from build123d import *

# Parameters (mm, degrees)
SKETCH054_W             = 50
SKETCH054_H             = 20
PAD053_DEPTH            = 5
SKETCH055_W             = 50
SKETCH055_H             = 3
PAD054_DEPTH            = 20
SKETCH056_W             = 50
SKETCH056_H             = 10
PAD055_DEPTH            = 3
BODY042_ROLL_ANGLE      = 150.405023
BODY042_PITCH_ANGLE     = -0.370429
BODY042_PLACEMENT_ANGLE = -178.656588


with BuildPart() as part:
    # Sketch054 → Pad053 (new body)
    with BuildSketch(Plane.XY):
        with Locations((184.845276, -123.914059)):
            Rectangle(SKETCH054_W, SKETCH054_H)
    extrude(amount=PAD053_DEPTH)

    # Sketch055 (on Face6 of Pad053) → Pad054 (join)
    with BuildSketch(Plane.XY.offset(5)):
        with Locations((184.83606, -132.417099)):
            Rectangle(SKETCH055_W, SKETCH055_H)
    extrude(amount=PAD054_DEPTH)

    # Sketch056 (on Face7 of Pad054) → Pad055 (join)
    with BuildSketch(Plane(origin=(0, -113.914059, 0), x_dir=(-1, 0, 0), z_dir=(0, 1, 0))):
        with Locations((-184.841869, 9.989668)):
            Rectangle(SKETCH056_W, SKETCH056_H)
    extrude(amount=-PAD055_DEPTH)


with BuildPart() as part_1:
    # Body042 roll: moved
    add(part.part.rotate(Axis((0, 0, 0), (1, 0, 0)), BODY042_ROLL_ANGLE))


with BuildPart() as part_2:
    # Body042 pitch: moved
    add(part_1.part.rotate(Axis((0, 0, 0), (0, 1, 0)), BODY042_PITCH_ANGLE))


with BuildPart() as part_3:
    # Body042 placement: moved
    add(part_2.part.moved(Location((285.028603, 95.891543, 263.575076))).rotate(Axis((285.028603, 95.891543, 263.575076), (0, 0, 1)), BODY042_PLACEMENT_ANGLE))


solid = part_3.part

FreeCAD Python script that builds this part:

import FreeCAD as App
import Part
import Sketcher
from FreeCAD import Vector
Q = App.Units.Quantity


def add_polygon(sketch, points):
    """Adds a closed chain of lines whose ends are joined by coincident constraints."""
    first, n = sketch.GeometryCount, len(points)
    for a, b in zip(points, points[1:] + points[:1]):
        sketch.addGeometry(Part.LineSegment(App.Vector(*a, 0), App.Vector(*b, 0)), False)
    for i in range(n):
        sketch.addConstraint(Sketcher.Constraint("Coincident", first + i, 2, first + (i + 1) % n, 1))

doc = App.newDocument("Part")
params = doc.addObject("Spreadsheet::Sheet", "Params")
for row, (alias, value) in enumerate([
    ("sketch1_width", "50 mm"),
    ("sketch1_height", "20 mm"),
    ("pad1_length", "5 mm"),
    ("sketch2_width", "50 mm"),
    ("sketch2_height", "3 mm"),
    ("pad2_length", "20 mm"),
    ("sketch3_width", "50 mm"),
    ("sketch3_height", "10 mm"),
    ("pad3_length", "3 mm"),
], start=1):
    params.set(f"A{row}", alias)
    params.set(f"B{row}", "=" + value)
    params.setAlias(f"B{row}", alias)

body = doc.addObject("PartDesign::Body", "Body")

sketch1 = body.newObject("Sketcher::SketchObject", "Sketch")
sketch1.AttachmentSupport = (doc.getObject("XY_Plane"), [""])
sketch1.MapMode = "FlatFace"
add_polygon(sketch1, [(160, -114), (160, -134), (210, -134), (210, -114)])
sketch1.addConstraint([
    Sketcher.Constraint("Vertical", 0),
    Sketcher.Constraint("Horizontal", 1),
    Sketcher.Constraint("Vertical", 2),
    Sketcher.Constraint("Horizontal", 3),
    Sketcher.Constraint("DistanceX", 1, 1, 1, 2, Q("50 mm")),
    Sketcher.Constraint("DistanceY", 0, 2, 0, 1, Q("20 mm")),
    Sketcher.Constraint("DistanceY", 0, 2, -1, 1, Q("133.914059 mm")),
    Sketcher.Constraint("DistanceX", -1, 1, 0, 2, Q("159.845276 mm")),
])
sketch1.setExpression("Constraints[8]", "Params.sketch1_width")
sketch1.setExpression("Constraints[9]", "Params.sketch1_height")
pad1 = body.newObject("PartDesign::Pad", "Pad")
pad1.Profile = sketch1
pad1.setExpression("Length", "Params.pad1_length")

sketch2 = body.newObject("Sketcher::SketchObject", "Sketch001")
sketch2.AttachmentSupport = (doc.getObject("XY_Plane"), [""])
sketch2.MapMode = "FlatFace"
sketch2.AttachmentOffset = App.Placement(Vector(0, 0, 5), App.Rotation())
add_polygon(sketch2, [(159.8, -130.9), (159.8, -133.9), (209.8, -133.9), (209.8, -130.9)])
sketch2.addConstraint([
    Sketcher.Constraint("Vertical", 0),
    Sketcher.Constraint("Horizontal", 1),
    Sketcher.Constraint("Vertical", 2),
    Sketcher.Constraint("Horizontal", 3),
    Sketcher.Constraint("DistanceX", 1, 1, 1, 2, Q("50 mm")),
    Sketcher.Constraint("DistanceY", 0, 2, 0, 1, Q("3 mm")),
    Sketcher.Constraint("DistanceY", 0, 2, -1, 1, Q("133.917099 mm")),
    Sketcher.Constraint("DistanceX", -1, 1, 0, 2, Q("159.83606 mm")),
])
sketch2.setExpression("Constraints[8]", "Params.sketch2_width")
sketch2.setExpression("Constraints[9]", "Params.sketch2_height")
pad2 = body.newObject("PartDesign::Pad", "Pad001")
pad2.Profile = sketch2
pad2.setExpression("Length", "Params.pad2_length")

sketch3 = body.newObject("Sketcher::SketchObject", "Sketch002")
sketch3.AttachmentSupport = (doc.getObject("XZ_Plane"), [""])
sketch3.MapMode = "FlatFace"
sketch3.AttachmentOffset = App.Placement(Vector(0, 0, 113.914059), App.Rotation())
add_polygon(sketch3, [(210, 15), (210, 5), (160, 5), (160, 15)])
sketch3.addConstraint([
    Sketcher.Constraint("Vertical", 0),
    Sketcher.Constraint("Horizontal", 1),
    Sketcher.Constraint("Vertical", 2),
    Sketcher.Constraint("Horizontal", 3),
    Sketcher.Constraint("DistanceX", 1, 2, 1, 1, Q("50 mm")),
    Sketcher.Constraint("DistanceY", 0, 2, 0, 1, Q("10 mm")),
    Sketcher.Constraint("DistanceX", -1, 1, 0, 2, Q("209.841869 mm")),
    Sketcher.Constraint("DistanceY", -1, 1, 0, 2, Q("4.989668 mm")),
])
sketch3.setExpression("Constraints[8]", "Params.sketch3_width")
sketch3.setExpression("Constraints[9]", "Params.sketch3_height")
pad3 = body.newObject("PartDesign::Pad", "Pad002")
pad3.Profile = sketch3
pad3.setExpression("Length", "Params.pad3_length")
body2 = doc.addObject("PartDesign::Body", "Body001")
doc.recompute()

body.Placement = App.Placement(Vector(0, 0, 0), App.Rotation(Vector(1, 0, 0), 150.405023))
boolean = body2.newObject("PartDesign::Boolean", "Boolean")
boolean.Type = "Fuse"
boolean.addObjects([body])
body3 = doc.addObject("PartDesign::Body", "Body002")
doc.recompute()

body2.Placement = App.Placement(Vector(0, 0, 0), App.Rotation(Vector(0, 1, 0), 359.629571))
boolean2 = body3.newObject("PartDesign::Boolean", "Boolean001")
boolean2.Type = "Fuse"
boolean2.addObjects([body2])
body4 = doc.addObject("PartDesign::Body", "Body003")
doc.recompute()

body3.Placement = App.Placement(Vector(285.028603, 95.891543, 263.575076), App.Rotation(Vector(0, 0, 1), 181.343412))
boolean3 = body4.newObject("PartDesign::Boolean", "Boolean002")
boolean3.Type = "Fuse"
boolean3.addObjects([body3])

doc.recompute()
